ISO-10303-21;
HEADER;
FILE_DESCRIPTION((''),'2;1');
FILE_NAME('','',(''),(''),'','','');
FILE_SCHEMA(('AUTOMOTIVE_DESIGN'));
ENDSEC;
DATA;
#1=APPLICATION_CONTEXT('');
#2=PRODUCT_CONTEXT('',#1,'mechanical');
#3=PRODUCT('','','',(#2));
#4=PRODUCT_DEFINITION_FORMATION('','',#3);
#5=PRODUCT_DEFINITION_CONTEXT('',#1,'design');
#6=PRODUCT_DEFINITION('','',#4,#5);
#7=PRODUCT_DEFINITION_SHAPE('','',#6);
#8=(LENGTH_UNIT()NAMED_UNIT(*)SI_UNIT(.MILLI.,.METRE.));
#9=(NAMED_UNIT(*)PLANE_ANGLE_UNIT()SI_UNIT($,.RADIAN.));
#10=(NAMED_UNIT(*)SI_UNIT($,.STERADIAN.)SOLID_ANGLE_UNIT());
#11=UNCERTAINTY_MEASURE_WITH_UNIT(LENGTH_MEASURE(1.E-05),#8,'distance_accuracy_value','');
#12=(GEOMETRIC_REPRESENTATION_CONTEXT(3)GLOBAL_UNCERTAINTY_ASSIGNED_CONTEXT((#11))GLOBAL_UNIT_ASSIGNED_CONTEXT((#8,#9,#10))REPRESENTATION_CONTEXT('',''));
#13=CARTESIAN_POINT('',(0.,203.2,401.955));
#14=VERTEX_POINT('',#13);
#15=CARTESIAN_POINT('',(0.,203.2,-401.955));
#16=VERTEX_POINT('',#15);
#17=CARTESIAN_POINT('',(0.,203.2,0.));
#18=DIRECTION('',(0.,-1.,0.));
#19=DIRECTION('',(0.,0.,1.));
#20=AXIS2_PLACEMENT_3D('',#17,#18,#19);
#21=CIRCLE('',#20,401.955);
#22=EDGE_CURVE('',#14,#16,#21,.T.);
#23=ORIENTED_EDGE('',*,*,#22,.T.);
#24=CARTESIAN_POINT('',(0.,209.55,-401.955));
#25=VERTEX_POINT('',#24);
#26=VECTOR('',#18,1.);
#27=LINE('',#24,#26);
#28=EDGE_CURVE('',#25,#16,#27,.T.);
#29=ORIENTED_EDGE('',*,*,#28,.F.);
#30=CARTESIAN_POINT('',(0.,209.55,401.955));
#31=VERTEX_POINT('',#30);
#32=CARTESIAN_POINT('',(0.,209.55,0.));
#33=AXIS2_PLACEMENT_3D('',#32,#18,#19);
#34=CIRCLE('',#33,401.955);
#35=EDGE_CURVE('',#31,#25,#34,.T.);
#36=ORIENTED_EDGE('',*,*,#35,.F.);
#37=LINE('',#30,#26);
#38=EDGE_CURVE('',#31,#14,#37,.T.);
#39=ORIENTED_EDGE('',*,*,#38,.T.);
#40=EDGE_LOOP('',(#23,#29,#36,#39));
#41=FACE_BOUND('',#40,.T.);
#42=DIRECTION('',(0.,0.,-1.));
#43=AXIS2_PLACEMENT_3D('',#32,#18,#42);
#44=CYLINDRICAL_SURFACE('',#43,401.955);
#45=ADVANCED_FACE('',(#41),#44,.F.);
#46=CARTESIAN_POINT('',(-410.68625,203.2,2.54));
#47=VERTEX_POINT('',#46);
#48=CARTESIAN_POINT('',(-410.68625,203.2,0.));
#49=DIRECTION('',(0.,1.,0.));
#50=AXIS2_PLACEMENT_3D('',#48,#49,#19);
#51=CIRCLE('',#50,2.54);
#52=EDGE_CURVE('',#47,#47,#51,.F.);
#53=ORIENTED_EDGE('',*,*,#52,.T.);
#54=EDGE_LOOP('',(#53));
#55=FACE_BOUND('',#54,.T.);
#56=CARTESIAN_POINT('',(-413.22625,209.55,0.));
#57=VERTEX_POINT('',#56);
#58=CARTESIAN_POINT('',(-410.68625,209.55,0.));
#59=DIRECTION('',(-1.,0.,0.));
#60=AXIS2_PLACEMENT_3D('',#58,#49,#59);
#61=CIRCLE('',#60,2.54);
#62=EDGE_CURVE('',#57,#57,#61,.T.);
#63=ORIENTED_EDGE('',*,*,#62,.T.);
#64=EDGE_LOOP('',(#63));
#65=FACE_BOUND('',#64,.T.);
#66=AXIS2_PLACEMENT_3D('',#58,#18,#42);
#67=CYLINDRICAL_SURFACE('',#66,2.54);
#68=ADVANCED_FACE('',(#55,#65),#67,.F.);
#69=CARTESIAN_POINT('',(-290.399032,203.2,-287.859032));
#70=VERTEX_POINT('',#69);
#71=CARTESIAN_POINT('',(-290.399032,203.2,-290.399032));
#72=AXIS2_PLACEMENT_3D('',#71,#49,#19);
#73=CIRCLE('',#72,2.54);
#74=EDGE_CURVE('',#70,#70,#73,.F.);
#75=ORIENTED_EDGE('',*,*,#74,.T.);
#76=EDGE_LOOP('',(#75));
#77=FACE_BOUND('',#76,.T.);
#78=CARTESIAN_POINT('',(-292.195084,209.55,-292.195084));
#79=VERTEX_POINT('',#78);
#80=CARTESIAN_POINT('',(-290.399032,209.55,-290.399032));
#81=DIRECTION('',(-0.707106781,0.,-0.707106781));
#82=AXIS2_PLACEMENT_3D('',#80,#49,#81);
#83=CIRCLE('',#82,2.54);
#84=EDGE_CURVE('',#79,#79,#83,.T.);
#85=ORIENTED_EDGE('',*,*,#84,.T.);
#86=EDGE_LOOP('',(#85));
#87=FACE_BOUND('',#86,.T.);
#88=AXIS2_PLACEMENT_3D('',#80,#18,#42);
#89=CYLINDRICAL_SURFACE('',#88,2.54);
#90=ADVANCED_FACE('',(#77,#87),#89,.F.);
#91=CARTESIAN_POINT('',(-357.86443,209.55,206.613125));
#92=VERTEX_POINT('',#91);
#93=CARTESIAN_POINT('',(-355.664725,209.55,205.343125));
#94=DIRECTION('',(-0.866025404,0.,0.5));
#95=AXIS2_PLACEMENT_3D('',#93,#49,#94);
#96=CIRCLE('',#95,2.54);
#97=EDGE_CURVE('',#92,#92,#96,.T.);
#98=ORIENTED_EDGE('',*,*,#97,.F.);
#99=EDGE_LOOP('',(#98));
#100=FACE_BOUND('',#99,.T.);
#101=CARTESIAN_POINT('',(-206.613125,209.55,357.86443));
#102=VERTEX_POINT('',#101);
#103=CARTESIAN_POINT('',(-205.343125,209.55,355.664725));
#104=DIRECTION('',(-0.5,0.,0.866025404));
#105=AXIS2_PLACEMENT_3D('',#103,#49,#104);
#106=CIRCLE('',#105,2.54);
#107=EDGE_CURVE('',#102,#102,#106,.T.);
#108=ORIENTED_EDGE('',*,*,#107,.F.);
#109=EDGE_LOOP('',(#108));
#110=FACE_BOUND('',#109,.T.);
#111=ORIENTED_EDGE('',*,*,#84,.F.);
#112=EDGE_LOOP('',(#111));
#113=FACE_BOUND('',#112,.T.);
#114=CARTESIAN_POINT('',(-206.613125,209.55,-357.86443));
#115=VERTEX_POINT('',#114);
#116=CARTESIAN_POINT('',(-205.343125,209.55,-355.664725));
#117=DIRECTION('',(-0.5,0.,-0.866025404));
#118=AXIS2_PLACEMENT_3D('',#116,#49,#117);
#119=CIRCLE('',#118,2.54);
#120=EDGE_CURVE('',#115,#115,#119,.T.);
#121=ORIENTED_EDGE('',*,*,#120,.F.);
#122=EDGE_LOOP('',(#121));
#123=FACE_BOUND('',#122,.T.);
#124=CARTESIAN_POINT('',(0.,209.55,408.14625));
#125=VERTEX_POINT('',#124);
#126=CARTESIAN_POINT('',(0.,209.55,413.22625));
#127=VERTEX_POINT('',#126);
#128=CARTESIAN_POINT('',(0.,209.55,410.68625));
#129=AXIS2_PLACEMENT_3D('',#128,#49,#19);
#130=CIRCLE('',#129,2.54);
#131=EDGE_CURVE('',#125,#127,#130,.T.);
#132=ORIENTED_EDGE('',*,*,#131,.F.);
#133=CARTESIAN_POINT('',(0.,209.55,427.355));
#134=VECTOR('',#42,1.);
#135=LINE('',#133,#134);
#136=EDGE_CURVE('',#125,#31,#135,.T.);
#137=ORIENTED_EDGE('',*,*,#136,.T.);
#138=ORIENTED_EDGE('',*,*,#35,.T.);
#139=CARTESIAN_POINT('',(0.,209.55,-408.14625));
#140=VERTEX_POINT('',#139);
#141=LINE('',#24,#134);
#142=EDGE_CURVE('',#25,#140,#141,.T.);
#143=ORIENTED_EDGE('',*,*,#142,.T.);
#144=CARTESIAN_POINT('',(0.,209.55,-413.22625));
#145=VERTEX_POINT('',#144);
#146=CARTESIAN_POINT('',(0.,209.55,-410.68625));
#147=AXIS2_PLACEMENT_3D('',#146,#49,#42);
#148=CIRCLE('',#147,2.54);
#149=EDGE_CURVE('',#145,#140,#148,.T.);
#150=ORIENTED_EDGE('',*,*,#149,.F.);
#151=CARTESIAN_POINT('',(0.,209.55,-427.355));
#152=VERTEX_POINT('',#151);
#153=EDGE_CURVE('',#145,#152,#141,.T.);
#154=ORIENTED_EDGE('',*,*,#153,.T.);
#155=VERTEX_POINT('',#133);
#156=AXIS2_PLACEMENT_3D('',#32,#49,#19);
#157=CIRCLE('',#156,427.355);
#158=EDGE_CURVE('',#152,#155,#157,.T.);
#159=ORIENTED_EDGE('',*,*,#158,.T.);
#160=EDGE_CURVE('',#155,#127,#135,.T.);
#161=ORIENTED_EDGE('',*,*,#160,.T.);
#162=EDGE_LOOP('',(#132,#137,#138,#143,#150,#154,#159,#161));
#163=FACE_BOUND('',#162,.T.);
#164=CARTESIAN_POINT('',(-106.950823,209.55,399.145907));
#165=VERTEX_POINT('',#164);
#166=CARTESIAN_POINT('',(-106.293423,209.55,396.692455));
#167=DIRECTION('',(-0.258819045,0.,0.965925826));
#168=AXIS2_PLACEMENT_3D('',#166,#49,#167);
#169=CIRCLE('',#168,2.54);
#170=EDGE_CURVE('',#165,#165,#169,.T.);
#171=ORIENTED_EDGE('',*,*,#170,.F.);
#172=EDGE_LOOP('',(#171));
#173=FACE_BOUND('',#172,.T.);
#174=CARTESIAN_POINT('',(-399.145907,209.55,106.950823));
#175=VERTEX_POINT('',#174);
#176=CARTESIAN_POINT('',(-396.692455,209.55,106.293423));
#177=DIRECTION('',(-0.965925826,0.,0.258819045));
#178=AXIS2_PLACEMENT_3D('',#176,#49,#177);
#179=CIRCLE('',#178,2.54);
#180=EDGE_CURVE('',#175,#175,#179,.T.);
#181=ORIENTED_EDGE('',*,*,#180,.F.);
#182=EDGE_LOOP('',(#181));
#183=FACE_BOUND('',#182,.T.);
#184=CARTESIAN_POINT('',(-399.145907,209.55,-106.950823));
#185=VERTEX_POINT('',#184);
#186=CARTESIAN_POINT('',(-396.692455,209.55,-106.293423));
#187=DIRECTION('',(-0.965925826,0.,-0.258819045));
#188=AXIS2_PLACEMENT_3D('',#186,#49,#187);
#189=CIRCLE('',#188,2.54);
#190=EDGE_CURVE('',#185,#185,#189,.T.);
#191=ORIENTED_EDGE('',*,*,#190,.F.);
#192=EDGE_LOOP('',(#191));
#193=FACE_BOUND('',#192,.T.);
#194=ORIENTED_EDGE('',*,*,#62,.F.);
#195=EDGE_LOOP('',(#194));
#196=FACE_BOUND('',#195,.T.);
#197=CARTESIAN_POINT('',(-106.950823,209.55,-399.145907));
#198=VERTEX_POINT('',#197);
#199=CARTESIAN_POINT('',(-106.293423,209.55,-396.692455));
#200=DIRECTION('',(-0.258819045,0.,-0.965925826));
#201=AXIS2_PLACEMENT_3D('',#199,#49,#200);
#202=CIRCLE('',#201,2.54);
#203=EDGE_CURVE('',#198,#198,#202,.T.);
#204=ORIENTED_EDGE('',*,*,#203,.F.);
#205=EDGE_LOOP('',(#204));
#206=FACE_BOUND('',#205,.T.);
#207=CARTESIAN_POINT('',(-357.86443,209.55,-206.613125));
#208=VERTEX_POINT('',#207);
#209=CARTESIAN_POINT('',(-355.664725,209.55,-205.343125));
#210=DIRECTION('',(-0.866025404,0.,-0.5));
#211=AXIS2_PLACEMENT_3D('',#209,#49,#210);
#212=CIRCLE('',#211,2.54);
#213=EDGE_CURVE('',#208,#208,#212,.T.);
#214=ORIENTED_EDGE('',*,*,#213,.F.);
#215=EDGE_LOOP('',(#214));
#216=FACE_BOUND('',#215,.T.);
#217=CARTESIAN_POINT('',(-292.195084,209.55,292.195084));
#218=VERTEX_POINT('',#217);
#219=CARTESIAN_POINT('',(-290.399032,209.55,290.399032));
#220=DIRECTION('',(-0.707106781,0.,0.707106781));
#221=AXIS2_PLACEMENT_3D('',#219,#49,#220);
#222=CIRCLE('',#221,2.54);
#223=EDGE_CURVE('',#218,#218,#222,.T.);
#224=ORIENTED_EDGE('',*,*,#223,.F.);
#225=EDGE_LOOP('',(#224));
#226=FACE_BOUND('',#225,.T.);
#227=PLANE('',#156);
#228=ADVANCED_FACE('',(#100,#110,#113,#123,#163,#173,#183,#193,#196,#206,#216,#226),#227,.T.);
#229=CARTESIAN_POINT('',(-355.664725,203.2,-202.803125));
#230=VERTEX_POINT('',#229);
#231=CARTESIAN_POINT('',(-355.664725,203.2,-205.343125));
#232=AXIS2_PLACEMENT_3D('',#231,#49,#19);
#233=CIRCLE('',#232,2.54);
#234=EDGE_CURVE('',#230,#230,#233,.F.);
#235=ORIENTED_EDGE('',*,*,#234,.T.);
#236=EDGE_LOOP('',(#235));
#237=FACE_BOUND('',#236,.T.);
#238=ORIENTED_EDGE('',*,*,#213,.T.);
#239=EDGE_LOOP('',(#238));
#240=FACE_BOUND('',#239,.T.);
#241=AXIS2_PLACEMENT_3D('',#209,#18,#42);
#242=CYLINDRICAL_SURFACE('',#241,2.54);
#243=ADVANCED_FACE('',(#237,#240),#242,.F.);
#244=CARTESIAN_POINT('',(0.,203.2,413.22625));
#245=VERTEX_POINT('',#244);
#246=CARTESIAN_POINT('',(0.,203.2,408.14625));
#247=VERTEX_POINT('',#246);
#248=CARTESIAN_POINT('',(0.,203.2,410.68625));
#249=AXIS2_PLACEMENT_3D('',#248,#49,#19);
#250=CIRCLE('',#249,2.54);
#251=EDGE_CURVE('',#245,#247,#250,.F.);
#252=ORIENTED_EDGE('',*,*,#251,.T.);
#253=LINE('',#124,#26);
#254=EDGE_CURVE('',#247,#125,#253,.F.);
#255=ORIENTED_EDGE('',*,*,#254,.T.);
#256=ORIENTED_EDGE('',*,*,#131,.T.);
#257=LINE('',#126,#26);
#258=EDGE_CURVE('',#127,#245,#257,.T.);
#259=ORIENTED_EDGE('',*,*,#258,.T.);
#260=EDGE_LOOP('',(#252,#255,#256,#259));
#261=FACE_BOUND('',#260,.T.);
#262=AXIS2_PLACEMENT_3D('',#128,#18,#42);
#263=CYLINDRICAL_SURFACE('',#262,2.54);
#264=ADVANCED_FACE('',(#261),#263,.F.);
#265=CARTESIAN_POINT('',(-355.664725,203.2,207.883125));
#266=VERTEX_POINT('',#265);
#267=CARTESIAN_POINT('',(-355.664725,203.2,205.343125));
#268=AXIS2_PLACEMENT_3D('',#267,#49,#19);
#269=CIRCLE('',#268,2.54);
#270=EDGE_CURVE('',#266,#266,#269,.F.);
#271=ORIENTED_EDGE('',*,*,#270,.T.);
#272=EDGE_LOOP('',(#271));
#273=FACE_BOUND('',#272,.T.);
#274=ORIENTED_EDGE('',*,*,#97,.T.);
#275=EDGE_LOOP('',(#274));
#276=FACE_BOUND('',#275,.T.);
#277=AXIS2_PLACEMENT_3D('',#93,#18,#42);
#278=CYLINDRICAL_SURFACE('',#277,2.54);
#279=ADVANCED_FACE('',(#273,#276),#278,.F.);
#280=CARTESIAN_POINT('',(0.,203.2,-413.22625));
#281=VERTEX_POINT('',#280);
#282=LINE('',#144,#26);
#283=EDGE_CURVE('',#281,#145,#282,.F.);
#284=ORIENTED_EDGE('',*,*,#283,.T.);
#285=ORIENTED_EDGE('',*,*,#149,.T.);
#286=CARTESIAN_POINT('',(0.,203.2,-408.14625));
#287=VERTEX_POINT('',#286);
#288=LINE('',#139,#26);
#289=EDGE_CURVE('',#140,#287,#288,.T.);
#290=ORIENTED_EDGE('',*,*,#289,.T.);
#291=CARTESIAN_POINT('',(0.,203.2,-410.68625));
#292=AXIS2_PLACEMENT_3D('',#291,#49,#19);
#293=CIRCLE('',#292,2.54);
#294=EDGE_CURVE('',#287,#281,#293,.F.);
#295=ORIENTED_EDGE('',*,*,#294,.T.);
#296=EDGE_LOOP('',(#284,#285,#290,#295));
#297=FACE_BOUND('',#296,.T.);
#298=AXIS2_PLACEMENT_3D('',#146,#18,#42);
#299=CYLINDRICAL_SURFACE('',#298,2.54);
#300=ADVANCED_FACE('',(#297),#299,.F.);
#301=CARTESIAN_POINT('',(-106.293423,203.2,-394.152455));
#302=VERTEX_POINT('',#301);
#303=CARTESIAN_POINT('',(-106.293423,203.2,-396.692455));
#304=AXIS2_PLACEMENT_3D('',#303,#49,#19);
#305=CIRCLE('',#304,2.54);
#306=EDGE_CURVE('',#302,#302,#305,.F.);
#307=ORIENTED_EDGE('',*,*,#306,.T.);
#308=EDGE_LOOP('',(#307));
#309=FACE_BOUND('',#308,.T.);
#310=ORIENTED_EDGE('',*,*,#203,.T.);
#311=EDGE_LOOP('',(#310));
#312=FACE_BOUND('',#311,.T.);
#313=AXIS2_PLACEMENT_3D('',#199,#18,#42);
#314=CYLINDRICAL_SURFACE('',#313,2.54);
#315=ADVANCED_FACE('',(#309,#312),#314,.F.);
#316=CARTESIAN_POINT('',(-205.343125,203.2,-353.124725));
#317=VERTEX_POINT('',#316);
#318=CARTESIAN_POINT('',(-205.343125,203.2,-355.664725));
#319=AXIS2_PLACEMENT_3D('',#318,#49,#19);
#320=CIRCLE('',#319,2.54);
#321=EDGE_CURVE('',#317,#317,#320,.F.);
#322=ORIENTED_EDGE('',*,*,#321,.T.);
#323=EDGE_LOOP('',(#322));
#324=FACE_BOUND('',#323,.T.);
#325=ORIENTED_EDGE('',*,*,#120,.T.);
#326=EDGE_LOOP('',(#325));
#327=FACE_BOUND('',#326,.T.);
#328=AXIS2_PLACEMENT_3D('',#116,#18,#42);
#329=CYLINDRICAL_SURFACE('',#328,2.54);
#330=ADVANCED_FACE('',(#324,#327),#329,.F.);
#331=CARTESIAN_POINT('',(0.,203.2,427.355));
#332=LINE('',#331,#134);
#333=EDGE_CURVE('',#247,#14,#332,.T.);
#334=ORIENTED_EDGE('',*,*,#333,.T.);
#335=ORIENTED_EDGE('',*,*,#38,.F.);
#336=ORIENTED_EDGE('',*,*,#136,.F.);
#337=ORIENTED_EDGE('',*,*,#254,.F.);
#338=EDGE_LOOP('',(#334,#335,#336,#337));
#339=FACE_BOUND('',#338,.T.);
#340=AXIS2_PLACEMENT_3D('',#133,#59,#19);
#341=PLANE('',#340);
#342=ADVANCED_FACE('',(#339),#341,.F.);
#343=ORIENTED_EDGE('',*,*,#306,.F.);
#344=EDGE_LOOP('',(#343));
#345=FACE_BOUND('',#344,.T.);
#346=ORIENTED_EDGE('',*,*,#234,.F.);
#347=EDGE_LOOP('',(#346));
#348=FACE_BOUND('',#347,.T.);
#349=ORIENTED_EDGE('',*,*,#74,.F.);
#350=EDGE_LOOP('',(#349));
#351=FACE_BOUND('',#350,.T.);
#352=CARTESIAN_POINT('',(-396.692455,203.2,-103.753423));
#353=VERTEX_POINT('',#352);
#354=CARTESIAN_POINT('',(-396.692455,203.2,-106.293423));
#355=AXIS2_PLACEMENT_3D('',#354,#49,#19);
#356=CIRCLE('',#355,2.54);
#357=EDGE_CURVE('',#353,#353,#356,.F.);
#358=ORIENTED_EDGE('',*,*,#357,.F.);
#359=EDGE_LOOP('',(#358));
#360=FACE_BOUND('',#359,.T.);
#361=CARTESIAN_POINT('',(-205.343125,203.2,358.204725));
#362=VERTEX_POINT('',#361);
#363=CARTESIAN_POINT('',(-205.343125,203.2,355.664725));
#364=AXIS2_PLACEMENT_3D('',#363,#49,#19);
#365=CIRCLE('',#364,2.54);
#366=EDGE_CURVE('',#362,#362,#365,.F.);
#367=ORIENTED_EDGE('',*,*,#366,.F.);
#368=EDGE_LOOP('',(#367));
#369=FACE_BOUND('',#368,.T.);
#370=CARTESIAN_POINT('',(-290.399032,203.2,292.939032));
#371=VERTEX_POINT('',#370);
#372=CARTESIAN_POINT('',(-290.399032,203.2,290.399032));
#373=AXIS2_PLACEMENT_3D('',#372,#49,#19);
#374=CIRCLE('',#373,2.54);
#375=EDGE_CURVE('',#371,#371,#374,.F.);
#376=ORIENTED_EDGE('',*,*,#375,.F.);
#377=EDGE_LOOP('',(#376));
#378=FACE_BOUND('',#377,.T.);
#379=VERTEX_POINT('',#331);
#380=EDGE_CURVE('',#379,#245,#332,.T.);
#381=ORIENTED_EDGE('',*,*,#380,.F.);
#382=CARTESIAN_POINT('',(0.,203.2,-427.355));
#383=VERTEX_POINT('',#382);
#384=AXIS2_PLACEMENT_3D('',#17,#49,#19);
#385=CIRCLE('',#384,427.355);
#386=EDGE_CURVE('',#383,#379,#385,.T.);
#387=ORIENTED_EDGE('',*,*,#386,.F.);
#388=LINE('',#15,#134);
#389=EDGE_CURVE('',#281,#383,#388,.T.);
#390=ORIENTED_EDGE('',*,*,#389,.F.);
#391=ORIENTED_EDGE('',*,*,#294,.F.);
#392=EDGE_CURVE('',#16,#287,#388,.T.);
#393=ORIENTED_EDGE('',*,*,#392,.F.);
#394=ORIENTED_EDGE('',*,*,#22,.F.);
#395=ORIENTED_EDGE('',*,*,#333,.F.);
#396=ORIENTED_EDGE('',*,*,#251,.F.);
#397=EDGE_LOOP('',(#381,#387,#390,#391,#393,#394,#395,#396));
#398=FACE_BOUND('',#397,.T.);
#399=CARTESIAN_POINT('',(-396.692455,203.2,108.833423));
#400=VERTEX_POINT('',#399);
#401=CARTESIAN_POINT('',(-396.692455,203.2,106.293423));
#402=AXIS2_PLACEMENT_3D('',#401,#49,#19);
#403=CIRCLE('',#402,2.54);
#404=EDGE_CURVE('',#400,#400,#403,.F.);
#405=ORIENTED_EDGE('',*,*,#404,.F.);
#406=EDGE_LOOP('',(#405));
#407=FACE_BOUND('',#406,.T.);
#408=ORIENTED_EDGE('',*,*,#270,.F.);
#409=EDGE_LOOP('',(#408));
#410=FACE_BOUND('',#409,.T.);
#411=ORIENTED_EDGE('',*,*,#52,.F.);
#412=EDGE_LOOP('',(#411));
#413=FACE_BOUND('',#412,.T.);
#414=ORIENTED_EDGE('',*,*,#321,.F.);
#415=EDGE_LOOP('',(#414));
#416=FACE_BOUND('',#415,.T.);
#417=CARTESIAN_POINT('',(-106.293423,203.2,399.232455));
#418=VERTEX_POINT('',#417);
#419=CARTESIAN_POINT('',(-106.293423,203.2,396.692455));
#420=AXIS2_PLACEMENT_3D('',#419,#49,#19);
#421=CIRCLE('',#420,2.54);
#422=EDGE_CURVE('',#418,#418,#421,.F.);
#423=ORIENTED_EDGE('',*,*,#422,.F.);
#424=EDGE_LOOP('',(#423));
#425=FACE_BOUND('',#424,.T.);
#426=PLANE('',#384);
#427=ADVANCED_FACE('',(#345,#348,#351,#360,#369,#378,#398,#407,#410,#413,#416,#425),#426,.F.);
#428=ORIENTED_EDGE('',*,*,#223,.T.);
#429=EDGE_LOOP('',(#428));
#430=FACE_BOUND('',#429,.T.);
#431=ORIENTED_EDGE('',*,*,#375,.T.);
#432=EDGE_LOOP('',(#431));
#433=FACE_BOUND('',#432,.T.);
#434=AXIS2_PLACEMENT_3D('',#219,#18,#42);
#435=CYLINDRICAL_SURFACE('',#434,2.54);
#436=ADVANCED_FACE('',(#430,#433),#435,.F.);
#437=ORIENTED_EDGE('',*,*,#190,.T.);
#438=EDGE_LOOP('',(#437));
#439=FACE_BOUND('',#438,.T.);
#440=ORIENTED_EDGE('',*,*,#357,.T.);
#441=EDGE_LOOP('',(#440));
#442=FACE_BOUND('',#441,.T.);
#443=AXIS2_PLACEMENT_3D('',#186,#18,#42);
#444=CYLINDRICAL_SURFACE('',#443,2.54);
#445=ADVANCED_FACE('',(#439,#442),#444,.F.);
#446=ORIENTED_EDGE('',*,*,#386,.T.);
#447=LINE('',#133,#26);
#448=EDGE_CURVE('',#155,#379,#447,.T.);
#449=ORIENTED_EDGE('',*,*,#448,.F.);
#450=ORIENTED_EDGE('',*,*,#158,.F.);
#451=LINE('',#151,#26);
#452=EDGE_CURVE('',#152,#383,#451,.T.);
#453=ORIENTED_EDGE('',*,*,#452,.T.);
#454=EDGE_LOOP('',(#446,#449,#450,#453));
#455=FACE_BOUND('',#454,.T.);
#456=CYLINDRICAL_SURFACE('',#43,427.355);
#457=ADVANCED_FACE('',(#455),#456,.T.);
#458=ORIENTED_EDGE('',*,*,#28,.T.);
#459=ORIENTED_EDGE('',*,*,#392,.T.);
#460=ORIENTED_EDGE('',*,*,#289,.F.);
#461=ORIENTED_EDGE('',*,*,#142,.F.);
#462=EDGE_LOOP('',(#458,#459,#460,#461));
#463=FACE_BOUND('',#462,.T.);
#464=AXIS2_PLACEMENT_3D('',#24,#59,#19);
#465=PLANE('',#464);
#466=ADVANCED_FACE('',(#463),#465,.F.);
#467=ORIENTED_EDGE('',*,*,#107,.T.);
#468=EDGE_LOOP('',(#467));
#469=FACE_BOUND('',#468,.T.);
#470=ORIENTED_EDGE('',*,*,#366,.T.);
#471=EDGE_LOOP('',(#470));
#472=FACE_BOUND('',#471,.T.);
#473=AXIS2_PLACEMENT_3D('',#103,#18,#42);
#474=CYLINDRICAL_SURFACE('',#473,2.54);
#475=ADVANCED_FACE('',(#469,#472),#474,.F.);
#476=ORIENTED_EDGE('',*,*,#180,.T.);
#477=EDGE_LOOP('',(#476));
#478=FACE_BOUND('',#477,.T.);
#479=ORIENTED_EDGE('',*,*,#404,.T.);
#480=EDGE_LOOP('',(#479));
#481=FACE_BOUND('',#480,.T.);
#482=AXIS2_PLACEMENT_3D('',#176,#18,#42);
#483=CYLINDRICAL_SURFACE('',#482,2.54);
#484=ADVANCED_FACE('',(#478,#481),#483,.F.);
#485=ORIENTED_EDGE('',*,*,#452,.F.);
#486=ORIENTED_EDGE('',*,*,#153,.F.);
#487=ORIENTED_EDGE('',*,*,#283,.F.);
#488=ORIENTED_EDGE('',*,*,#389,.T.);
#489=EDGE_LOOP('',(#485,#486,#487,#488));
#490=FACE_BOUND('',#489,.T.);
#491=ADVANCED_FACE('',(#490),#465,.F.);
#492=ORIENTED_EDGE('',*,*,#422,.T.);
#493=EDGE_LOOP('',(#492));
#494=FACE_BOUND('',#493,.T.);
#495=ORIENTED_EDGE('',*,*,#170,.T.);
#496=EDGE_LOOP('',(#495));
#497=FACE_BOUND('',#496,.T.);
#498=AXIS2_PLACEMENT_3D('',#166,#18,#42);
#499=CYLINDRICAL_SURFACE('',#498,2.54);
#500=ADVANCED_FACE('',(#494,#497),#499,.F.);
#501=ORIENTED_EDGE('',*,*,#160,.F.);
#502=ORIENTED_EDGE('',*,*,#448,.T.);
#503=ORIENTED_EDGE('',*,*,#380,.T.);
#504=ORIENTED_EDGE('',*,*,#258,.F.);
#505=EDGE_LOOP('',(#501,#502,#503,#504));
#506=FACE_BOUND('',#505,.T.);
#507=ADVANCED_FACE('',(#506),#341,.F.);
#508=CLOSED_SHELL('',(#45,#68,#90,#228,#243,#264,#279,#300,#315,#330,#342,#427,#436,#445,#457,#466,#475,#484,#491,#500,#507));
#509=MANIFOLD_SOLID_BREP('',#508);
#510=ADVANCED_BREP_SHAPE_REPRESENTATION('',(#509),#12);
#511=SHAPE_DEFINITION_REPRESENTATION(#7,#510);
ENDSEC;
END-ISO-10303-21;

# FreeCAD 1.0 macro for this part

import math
import FreeCAD as App
import Part
import Sketcher
Q = App.Units.Quantity

doc = App.newDocument("Part")
body = doc.addObject("PartDesign::Body", "Body")

# Sketch on YZ plane
sketch1 = body.newObject("Sketcher::SketchObject", "Sketch")
sketch1.AttachmentSupport = (doc.getObject("YZ_Plane"), [""])
sketch1.MapMode = "FlatFace"
sketch1.AttachmentOffset = App.Placement(App.Vector(0, 0, -12.5 * 25.4), App.Rotation())
sketch1.addGeometry(Part.LineSegment(App.Vector(88.9, -362.9, 0), App.Vector(88.9, 0, 0)), False)
sketch1.addGeometry(Part.LineSegment(App.Vector(88.9, 0, 0), App.Vector(65.1, 0, 0)), False)
sketch1.addGeometry(Part.ArcOfCircle(Part.Circle(App.Vector(50.8, 0, 0), App.Vector(0, 0, 1), 14.3), math.radians(180), math.radians(360)), False)
sketch1.addGeometry(Part.LineSegment(App.Vector(36.5, 0, 0), App.Vector(12.7, 0, 0)), False)
sketch1.addGeometry(Part.LineSegment(App.Vector(12.7, 0, 0), App.Vector(12.7, -362.9, 0)), False)
sketch1.addGeometry(Part.LineSegment(App.Vector(12.7, -362.9, 0), App.Vector(88.9, -362.9, 0)), False)
sketch1.addGeometry(Part.Circle(App.Vector(25.4, -53.3, 0), App.Vector(0, 0, 1), 2.5), False)
sketch1.addGeometry(Part.Circle(App.Vector(50.8, -53.3, 0), App.Vector(0, 0, 1), 9.5), False)
sketch1.addGeometry(Part.Circle(App.Vector(50.8, -177.5, 0), App.Vector(0, 0, 1), 14.3), False)
sketch1.addGeometry(Part.Circle(App.Vector(76.2, -53.3, 0), App.Vector(0, 0, 1), 2.5), False)
sketch1.addGeometry(Part.Circle(App.Vector(54, -337.5, 0), App.Vector(0, 0, 1), 14.3), False)
sketch1.addConstraint(Sketcher.Constraint("Coincident", 0, 2, 1, 1))
sketch1.addConstraint(Sketcher.Constraint("Coincident", 1, 2, 2, 2))
sketch1.addConstraint(Sketcher.Constraint("Coincident", 2, 1, 3, 1))
sketch1.addConstraint(Sketcher.Constraint("Coincident", 3, 2, 4, 1))
sketch1.addConstraint(Sketcher.Constraint("Coincident", 4, 2, 5, 1))
sketch1.addConstraint(Sketcher.Constraint("Coincident", 5, 2, 0, 1))
sketch1.addConstraint(Sketcher.Constraint("Vertical", 0))
sketch1.addConstraint(Sketcher.Constraint("Horizontal", 1))
sketch1.addConstraint(Sketcher.Constraint("Horizontal", 3))
sketch1.addConstraint(Sketcher.Constraint("Vertical", 4))
sketch1.addConstraint(Sketcher.Constraint("Horizontal", 5))
sketch1.addConstraint(Sketcher.Constraint("Equal", 2, 8))
sketch1.addConstraint(Sketcher.Constraint("Equal", 6, 9))
sketch1.addConstraint(Sketcher.Constraint("Equal", 8, 10))
sketch1.addConstraint(Sketcher.Constraint("PointOnObject", 2, 3, -1))
sketch1.addConstraint(Sketcher.Constraint("PointOnObject", 0, 2, -1))
sketch1.addConstraint(Sketcher.Constraint("PointOnObject", 2, 1, -1))
sketch1.addConstraint(Sketcher.Constraint("Horizontal", 6, 3, 7, 3))
sketch1.addConstraint(Sketcher.Constraint("Horizontal", 7, 3, 9, 3))
sketch1.addConstraint(Sketcher.Constraint("Vertical", 2, 3, 7, 3))
sketch1.addConstraint(Sketcher.Constraint("Vertical", 7, 3, 8, 3))
sketch1.addConstraint(Sketcher.Constraint("Equal", 1, 3))
sketch1.addConstraint(Sketcher.Constraint("Diameter", 6, Q("0.2 in")))
sketch1.addConstraint(Sketcher.Constraint("Diameter", 7, Q("0.75 in")))
sketch1.addConstraint(Sketcher.Constraint("DistanceX", 5, 1, 5, 2, Q("3 in")))
sketch1.addConstraint(Sketcher.Constraint("Diameter", 8, Q("1.125 in")))
sketch1.addConstraint(Sketcher.Constraint("DistanceX", -1, 1, 2, 3, Q("2 in")))
sketch1.addConstraint(Sketcher.Constraint("DistanceX", -1, 1, 6, 3, Q("1 in")))
sketch1.addConstraint(Sketcher.Constraint("DistanceX", -1, 1, 9, 3, Q("3 in")))
sketch1.addConstraint(Sketcher.Constraint("DistanceY", 4, 2, 10, 3, Q("1 in")))
sketch1.addConstraint(Sketcher.Constraint("DistanceY", 6, 3, -1, 1, Q("2.1 in")))
sketch1.addConstraint(Sketcher.Constraint("DistanceX", -1, 1, 10, 3, Q("2.125 in")))
sketch1.addConstraint(Sketcher.Constraint("DistanceY", 8, 3, -1, 1, Q("6.9866 in")))
sketch1.addConstraint(Sketcher.Constraint("DistanceY", 0, 1, 0, 2, 362.85322))
pad1 = body.newObject("PartDesign::Pad", "Pad")
pad1.Profile = sketch1
pad1.Length = Q("0.125 in")
pad1.Reversed = True

# Sketch on XZ plane
sketch2 = body.newObject("Sketcher::SketchObject", "Sketch001")
sketch2.AttachmentSupport = (doc.getObject("XZ_Plane"), [""])
sketch2.MapMode = "FlatFace"
sketch2.AttachmentOffset = App.Placement(App.Vector(0, 0, -3.5 * 25.4), App.Rotation())
sketch2.addGeometry(Part.LineSegment(App.Vector(-343, 0, 0), App.Vector(-319, 0, 0)), False)
sketch2.addGeometry(Part.LineSegment(App.Vector(-319, 0, 0), App.Vector(-318, -363, 0)), False)
sketch2.addGeometry(Part.LineSegment(App.Vector(-318, -363, 0), App.Vector(-343, -363, 0)), False)
sketch2.addGeometry(Part.LineSegment(App.Vector(-343, -363, 0), App.Vector(-343, 0, 0)), False)
sketch2.addConstraint(Sketcher.Constraint("Coincident", 0, 2, 1, 1))
sketch2.addConstraint(Sketcher.Constraint("Coincident", 1, 2, 2, 1))
sketch2.addConstraint(Sketcher.Constraint("Coincident", 2, 2, 3, 1))
sketch2.addConstraint(Sketcher.Constraint("Coincident", 3, 2, 0, 1))
sketch2.addConstraint(Sketcher.Constraint("Horizontal", 0))
sketch2.addConstraint(Sketcher.Constraint("Horizontal", 2))
sketch2.addConstraint(Sketcher.Constraint("Vertical", 3))
sketch2.addConstraint(Sketcher.Constraint("PointOnObject", 0, 2, -1))
sketch2.addConstraint(Sketcher.Constraint("DistanceX", 2, 2, 2, 1, Q("1 in")))
sketch2.addConstraint(Sketcher.Constraint("DistanceX", 1, 2, -1, 1, Q("12.5 in")))
sketch2.addConstraint(Sketcher.Constraint("DistanceX", 0, 1, 0, 2, Q("0.9375 in")))
sketch2.addConstraint(Sketcher.Constraint("DistanceY", 3, 1, 3, 2, 362.85322))
pad2 = body.newObject("PartDesign::Pad", "Pad001")
pad2.Profile = sketch2
pad2.Length = Q("0.125 in")

# Sketch on XZ plane
sketch3 = body.newObject("Sketcher::SketchObject", "Sketch002")
sketch3.AttachmentSupport = (doc.getObject("XZ_Plane"), [""])
sketch3.MapMode = "FlatFace"
sketch3.AttachmentOffset = App.Placement(App.Vector(0, 0, -0.5 * 25.4), App.Rotation())
sketch3.addGeometry(Part.LineSegment(App.Vector(-343, 0, 0), App.Vector(-319, 0, 0)), False)
sketch3.addGeometry(Part.LineSegment(App.Vector(-319, 0, 0), App.Vector(-318, -363, 0)), False)
sketch3.addGeometry(Part.LineSegment(App.Vector(-318, -363, 0), App.Vector(-343, -363, 0)), False)
sketch3.addGeometry(Part.LineSegment(App.Vector(-343, -363, 0), App.Vector(-343, 0, 0)), False)
sketch3.addConstraint(Sketcher.Constraint("Coincident", 0, 2, 1, 1))
sketch3.addConstraint(Sketcher.Constraint("Coincident", 1, 2, 2, 1))
sketch3.addConstraint(Sketcher.Constraint("Coincident", 2, 2, 3, 1))
sketch3.addConstraint(Sketcher.Constraint("Coincident", 3, 2, 0, 1))
sketch3.addConstraint(Sketcher.Constraint("Horizontal", 0))
sketch3.addConstraint(Sketcher.Constraint("Horizontal", 2))
sketch3.addConstraint(Sketcher.Constraint("Vertical", 3))
sketch3.addConstraint(Sketcher.Constraint("PointOnObject", 0, 2, -1))
sketch3.addConstraint(Sketcher.Constraint("DistanceX", 2, 2, 2, 1, Q("1 in")))
sketch3.addConstraint(Sketcher.Constraint("DistanceX", 1, 2, -1, 1, Q("12.5 in")))
sketch3.addConstraint(Sketcher.Constraint("DistanceX", 0, 1, 0, 2, Q("0.9375 in")))
sketch3.addConstraint(Sketcher.Constraint("DistanceY", 3, 1, 3, 2, 362.85322))
pad3 = body.newObject("PartDesign::Pad", "Pad002")
pad3.Profile = sketch3
pad3.Length = Q("0.125 in")
pad3.Reversed = True

# Sketch on XZ plane
sketch4 = body.newObject("Sketcher::SketchObject", "Sketch003")
sketch4.AttachmentSupport = (doc.getObject("XZ_Plane"), [""])
sketch4.MapMode = "FlatFace"
sketch4.AttachmentOffset = App.Placement(App.Vector(0, 0, -3.5 * 25.4), App.Rotation())
sketch4.addGeometry(Part.Circle(App.Vector(-330.2, -355.6, 0), App.Vector(0, 0, 1), 2.5), False)
sketch4.addConstraint(Sketcher.Constraint("Diameter", 0, Q("0.2 in")))
sketch4.addConstraint(Sketcher.Constraint("DistanceX", 0, 3, -1, 1, Q("13 in")))
sketch4.addConstraint(Sketcher.Constraint("DistanceY", 0, 3, -1, 1, Q("14 in")))
pocket1 = body.newObject("PartDesign::Pocket", "Pocket")
pocket1.Profile = sketch4
pocket1.Type = "ThroughAll"
pocket1.Reversed = True
doc.recompute()

linearpattern = body.newObject("PartDesign::LinearPattern", "LinearPattern")
linearpattern.Originals = [pocket1]
linearpattern.Direction = (doc.getObject("Z_Axis"), [""])
linearpattern.Mode = "offset"
linearpattern.Offset = Q("2 in")
linearpattern.Occurrences = 10
body.Tip = linearpattern
body2 = doc.addObject("PartDesign::Body", "Body001")
doc.recompute()

body2.BaseFeature = body
doc.recompute()

mirroring = doc.addObject("Part::Mirroring", "Mirroring")
mirroring.Source = body
mirroring.Base = App.Vector(-320.239665, 22.265915, 0)
mirroring.Normal = App.Vector(0, 0, 1)
body3 = doc.addObject("PartDesign::Body", "Body002")
body3.BaseFeature = mirroring
boolean = body2.newObject("PartDesign::Boolean", "Boolean")
boolean.Type = "Fuse"
boolean.addObjects([body3])
doc.recompute()

# Sketch on XZ plane
sketch5 = body2.newObject("Sketcher::SketchObject", "Sketch004")
sketch5.AttachmentSupport = (doc.getObject("XZ_Plane001"), [""])
sketch5.MapMode = "FlatFace"
sketch5.AttachmentOffset = App.Placement(App.Vector(0, 0, -4 * 25.4), App.Rotation())
sketch5.addGeometry(Part.LineSegment(App.Vector(0, 452.8, 0), App.Vector(0, -452.8, 0)), False)
sketch5.addGeometry(Part.ArcOfCircle(Part.Circle(App.Vector(0, 0, 0), App.Vector(0, 0, 1), 452.8), math.radians(-152), math.radians(-90)), False)
sketch5.addGeometry(Part.LineSegment(App.Vector(-399.8, -212.4, 0), App.Vector(-381, -212.4, 0)), False)
sketch5.addGeometry(Part.LineSegment(App.Vector(-381, -212.4, 0), App.Vector(-381, -142.5, 0)), False)
sketch5.addGeometry(Part.LineSegment(App.Vector(-381, -142.5, 0), App.Vector(-419.1, -142.5, 0)), False)
sketch5.addGeometry(Part.LineSegment(App.Vector(-419.1, -142.5, 0), App.Vector(-419.1, -171.3, 0)), False)
sketch5.addGeometry(Part.ArcOfCircle(Part.Circle(App.Vector(0, 0, 0), App.Vector(0, 0, 1), 452.8), math.radians(158), math.radians(202)), False)
sketch5.addGeometry(Part.LineSegment(App.Vector(-419.1, 171.3, 0), App.Vector(-419.1, 142.5, 0)), False)
sketch5.addGeometry(Part.LineSegment(App.Vector(-419.1, 142.5, 0), App.Vector(-381, 142.5, 0)), False)
sketch5.addGeometry(Part.LineSegment(App.Vector(-381, 142.5, 0), App.Vector(-381, 212.4, 0)), False)
sketch5.addGeometry(Part.LineSegment(App.Vector(-381, 212.4, 0), App.Vector(-399.8, 212.4, 0)), False)
sketch5.addGeometry(Part.ArcOfCircle(Part.Circle(App.Vector(0, 0, 0), App.Vector(0, 0, 1), 452.8), math.radians(90), math.radians(152)), False)
sketch5.addGeometry(Part.Circle(App.Vector(-441.3, 88.9, 0), App.Vector(0, 0, 1), 2.5), False)
sketch5.addGeometry(Part.Circle(App.Vector(-330.2, 304.8, 0), App.Vector(0, 0, 1), 2.5), False)
sketch5.addGeometry(Part.Circle(App.Vector(-330.2, 254, 0), App.Vector(0, 0, 1), 2.5), False)
sketch5.addGeometry(Part.Circle(App.Vector(-330.2, 203.2, 0), App.Vector(0, 0, 1), 2.5), False)
sketch5.addGeometry(Part.Circle(App.Vector(-330.2, 152.4, 0), App.Vector(0, 0, 1), 2.5), False)
sketch5.addGeometry(Part.Circle(App.Vector(-330.2, 101.6, 0), App.Vector(0, 0, 1), 2.5), False)
sketch5.addGeometry(Part.Circle(App.Vector(-330.2, 50.8, 0), App.Vector(0, 0, 1), 2.5), False)
sketch5.addGeometry(Part.Circle(App.Vector(-441.3, 0, 0), App.Vector(0, 0, 1), 2.5), False)
sketch5.addGeometry(Part.Circle(App.Vector(-441.3, -88.9, 0), App.Vector(0, 0, 1), 2.5), False)
sketch5.addGeometry(Part.Circle(App.Vector(-330.2, 0, 0), App.Vector(0, 0, 1), 2.5), False)
sketch5.addGeometry(Part.Circle(App.Vector(-330.2, -50.8, 0), App.Vector(0, 0, 1), 2.5), False)
sketch5.addGeometry(Part.Circle(App.Vector(-330.2, -101.6, 0), App.Vector(0, 0, 1), 2.5), False)
sketch5.addGeometry(Part.Circle(App.Vector(-330.2, -152.4, 0), App.Vector(0, 0, 1), 2.5), False)
sketch5.addGeometry(Part.Circle(App.Vector(-330.2, -203.2, 0), App.Vector(0, 0, 1), 2.5), False)
sketch5.addGeometry(Part.Circle(App.Vector(-330.2, -254, 0), App.Vector(0, 0, 1), 2.5), False)
sketch5.addGeometry(Part.Circle(App.Vector(-330.2, -304.8, 0), App.Vector(0, 0, 1), 2.5), False)
sketch5.addConstraint(Sketcher.Constraint("Coincident", 0, 2, 1, 2))
sketch5.addConstraint(Sketcher.Constraint("Coincident", 1, 1, 2, 1))
sketch5.addConstraint(Sketcher.Constraint("Coincident", 2, 2, 3, 1))
sketch5.addConstraint(Sketcher.Constraint("Coincident", 3, 2, 4, 1))
sketch5.addConstraint(Sketcher.Constraint("Coincident", 4, 2, 5, 1))
sketch5.addConstraint(Sketcher.Constraint("Coincident", 5, 2, 6, 2))
sketch5.addConstraint(Sketcher.Constraint("Coincident", 6, 1, 7, 1))
sketch5.addConstraint(Sketcher.Constraint("Coincident", 7, 2, 8, 1))
sketch5.addConstraint(Sketcher.Constraint("Coincident", 8, 2, 9, 1))
sketch5.addConstraint(Sketcher.Constraint("Coincident", 9, 2, 10, 1))
sketch5.addConstraint(Sketcher.Constraint("Coincident", 10, 2, 11, 2))
sketch5.addConstraint(Sketcher.Constraint("Coincident", 11, 1, 0, 1))
sketch5.addConstraint(Sketcher.Constraint("Vertical", 0))
sketch5.addConstraint(Sketcher.Constraint("Horizontal", 2))
sketch5.addConstraint(Sketcher.Constraint("Vertical", 3))
sketch5.addConstraint(Sketcher.Constraint("Horizontal", 4))
sketch5.addConstraint(Sketcher.Constraint("Vertical", 5))
sketch5.addConstraint(Sketcher.Constraint("Vertical", 7))
sketch5.addConstraint(Sketcher.Constraint("Horizontal", 8))
sketch5.addConstraint(Sketcher.Constraint("Vertical", 9))
sketch5.addConstraint(Sketcher.Constraint("Horizontal", 10))
sketch5.addConstraint(Sketcher.Constraint("Coincident", 1, 3, -1, 1))
sketch5.addConstraint(Sketcher.Constraint("Coincident", 6, 3, -1, 1))
sketch5.addConstraint(Sketcher.Constraint("Coincident", 11, 3, -1, 1))
sketch5.addConstraint(Sketcher.Constraint("Equal", 1, 6))
sketch5.addConstraint(Sketcher.Constraint("Equal", 6, 11))
sketch5.addConstraint(Sketcher.Constraint("Equal", 12, 13))
sketch5.addConstraint(Sketcher.Constraint("Equal", 13, 14))
sketch5.addConstraint(Sketcher.Constraint("Equal", 14, 15))
sketch5.addConstraint(Sketcher.Constraint("Equal", 15, 16))
sketch5.addConstraint(Sketcher.Constraint("Equal", 16, 17))
sketch5.addConstraint(Sketcher.Constraint("Equal", 17, 18))
sketch5.addConstraint(Sketcher.Constraint("Equal", 18, 19))
sketch5.addConstraint(Sketcher.Constraint("Equal", 19, 20))
sketch5.addConstraint(Sketcher.Constraint("Equal", 20, 21))
sketch5.addConstraint(Sketcher.Constraint("Equal", 21, 22))
sketch5.addConstraint(Sketcher.Constraint("Equal", 22, 23))
sketch5.addConstraint(Sketcher.Constraint("Equal", 23, 24))
sketch5.addConstraint(Sketcher.Constraint("Equal", 24, 25))
sketch5.addConstraint(Sketcher.Constraint("Equal", 25, 26))
sketch5.addConstraint(Sketcher.Constraint("Equal", 26, 27))
sketch5.addConstraint(Sketcher.Constraint("Symmetric", 12, 3, 20, 3, -1))
sketch5.addConstraint(Sketcher.Constraint("Symmetric", 18, 3, 22, 3, -1))
sketch5.addConstraint(Sketcher.Constraint("Symmetric", 17, 3, 23, 3, -1))
sketch5.addConstraint(Sketcher.Constraint("Symmetric", 16, 3, 24, 3, -1))
sketch5.addConstraint(Sketcher.Constraint("Symmetric", 15, 3, 25, 3, -1))
sketch5.addConstraint(Sketcher.Constraint("Symmetric", 14, 3, 26, 3, -1))
sketch5.addConstraint(Sketcher.Constraint("Symmetric", 13, 3, 27, 3, -1))
sketch5.addConstraint(Sketcher.Constraint("Symmetric", 4, 2, 7, 2, -1))
sketch5.addConstraint(Sketcher.Constraint("Symmetric", 2, 2, 9, 2, -1))
sketch5.addConstraint(Sketcher.Constraint("PointOnObject", 19, 3, -1))
sketch5.addConstraint(Sketcher.Constraint("PointOnObject", 21, 3, -1))
sketch5.addConstraint(Sketcher.Constraint("PointOnObject", 0, 2, -2))
sketch5.addConstraint(Sketcher.Constraint("Vertical", 13, 3, 14, 3))
sketch5.addConstraint(Sketcher.Constraint("Vertical", 14, 3, 15, 3))
sketch5.addConstraint(Sketcher.Constraint("Vertical", 15, 3, 16, 3))
sketch5.addConstraint(Sketcher.Constraint("Vertical", 16, 3, 17, 3))
sketch5.addConstraint(Sketcher.Constraint("Vertical", 17, 3, 18, 3))
sketch5.addConstraint(Sketcher.Constraint("Vertical", 12, 3, 19, 3))
sketch5.addConstraint(Sketcher.Constraint("Vertical", 18, 3, 21, 3))
sketch5.addConstraint(Sketcher.Constraint("Diameter", 12, Q("0.2 in")))
sketch5.addConstraint(Sketcher.Constraint("DistanceX", 4, 2, 4, 1, Q("1.5 in")))
sketch5.addConstraint(Sketcher.Constraint("DistanceX", 13, 3, -1, 1, Q("13 in")))
sketch5.addConstraint(Sketcher.Constraint("DistanceY", -1, 1, 13, 3, Q("12 in")))
sketch5.addConstraint(Sketcher.Constraint("DistanceY", -1, 1, 14, 3, Q("10 in")))
sketch5.addConstraint(Sketcher.Constraint("DistanceY", -1, 1, 15, 3, Q("8 in")))
sketch5.addConstraint(Sketcher.Constraint("DistanceY", -1, 1, 16, 3, Q("6 in")))
sketch5.addConstraint(Sketcher.Constraint("DistanceY", -1, 1, 17, 3, Q("4 in")))
sketch5.addConstraint(Sketcher.Constraint("DistanceY", -1, 1, 18, 3, Q("2 in")))
sketch5.addConstraint(Sketcher.Constraint("DistanceX", 2, 2, -1, 1, Q("15 in")))
sketch5.addConstraint(Sketcher.Constraint("Radius", 1, Q("17.825 in")))
sketch5.addConstraint(Sketcher.Constraint("DistanceY", 20, 3, 12, 3, Q("7 in")))
sketch5.addConstraint(Sketcher.Constraint("DistanceY", 3, 1, 3, 2, Q("2.75 in")))
sketch5.addConstraint(Sketcher.Constraint("DistanceX", 12, 3, -1, 1, Q("17.375 in")))
sketch5.addConstraint(Sketcher.Constraint("DistanceY", 2, 2, -1, 1, Q("8.3616 in")))
pad4 = body2.newObject("PartDesign::Pad", "Pad003")
pad4.Profile = sketch5
pad4.Length = Q("0.5 in")

# Sketch on XZ plane
sketch6 = body2.newObject("Sketcher::SketchObject", "Sketch005")
sketch6.AttachmentSupport = (doc.getObject("XZ_Plane001"), [""])
sketch6.MapMode = "FlatFace"
sketch6.AttachmentOffset = App.Placement(App.Vector(0, 0, -3.5 * 25.4), App.Rotation())
sketch6.addGeometry(Part.LineSegment(App.Vector(-317.5, -362.9, 0), App.Vector(-317.5, 362.9, 0)), False)
sketch6.addGeometry(Part.LineSegment(App.Vector(-317.5, 362.9, 0), App.Vector(-387.2, 362.9, 0)), False)
sketch6.addGeometry(Part.LineSegment(App.Vector(-387.2, 362.9, 0), App.Vector(-387.2, -362.9, 0)), False)
sketch6.addGeometry(Part.LineSegment(App.Vector(-387.2, -362.9, 0), App.Vector(-317.5, -362.9, 0)), False)
sketch6.addGeometry(Part.Circle(App.Vector(-330.2, -355.6, 0), App.Vector(0, 0, 1), 2.5), False)
sketch6.addGeometry(Part.Circle(App.Vector(-330.2, -304.8, 0), App.Vector(0, 0, 1), 2.5), False)
sketch6.addGeometry(Part.Circle(App.Vector(-330.2, -254, 0), App.Vector(0, 0, 1), 2.5), False)
sketch6.addGeometry(Part.Circle(App.Vector(-330.2, -203.2, 0), App.Vector(0, 0, 1), 2.5), False)
sketch6.addGeometry(Part.Circle(App.Vector(-330.2, -152.4, 0), App.Vector(0, 0, 1), 2.5), False)
sketch6.addGeometry(Part.Circle(App.Vector(-330.2, -101.6, 0), App.Vector(0, 0, 1), 2.5), False)
sketch6.addGeometry(Part.Circle(App.Vector(-330.2, -50.8, 0), App.Vector(0, 0, 1), 2.5), False)
sketch6.addGeometry(Part.Circle(App.Vector(-330.2, 50.8, 0), App.Vector(0, 0, 1), 2.5), False)
sketch6.addGeometry(Part.Circle(App.Vector(-330.2, 101.6, 0), App.Vector(0, 0, 1), 2.5), False)
sketch6.addGeometry(Part.Circle(App.Vector(-330.2, 152.4, 0), App.Vector(0, 0, 1), 2.5), False)
sketch6.addGeometry(Part.Circle(App.Vector(-330.2, 203.2, 0), App.Vector(0, 0, 1), 2.5), False)
sketch6.addGeometry(Part.Circle(App.Vector(-330.2, 254, 0), App.Vector(0, 0, 1), 2.5), False)
sketch6.addGeometry(Part.Circle(App.Vector(-330.2, 304.8, 0), App.Vector(0, 0, 1), 2.5), False)
sketch6.addGeometry(Part.Circle(App.Vector(-330.2, 355.6, 0), App.Vector(0, 0, 1), 2.5), False)
sketch6.addConstraint(Sketcher.Constraint("Coincident", 0, 2, 1, 1))
sketch6.addConstraint(Sketcher.Constraint("Coincident", 1, 2, 2, 1))
sketch6.addConstraint(Sketcher.Constraint("Coincident", 2, 2, 3, 1))
sketch6.addConstraint(Sketcher.Constraint("Coincident", 3, 2, 0, 1))
sketch6.addConstraint(Sketcher.Constraint("Vertical", 0))
sketch6.addConstraint(Sketcher.Constraint("Horizontal", 1))
sketch6.addConstraint(Sketcher.Constraint("Vertical", 2))
sketch6.addConstraint(Sketcher.Constraint("Horizontal", 3))
sketch6.addConstraint(Sketcher.Constraint("Equal", 4, 5))
sketch6.addConstraint(Sketcher.Constraint("Equal", 5, 6))
sketch6.addConstraint(Sketcher.Constraint("Equal", 6, 7))
sketch6.addConstraint(Sketcher.Constraint("Equal", 7, 8))
sketch6.addConstraint(Sketcher.Constraint("Equal", 8, 9))
sketch6.addConstraint(Sketcher.Constraint("Equal", 9, 10))
sketch6.addConstraint(Sketcher.Constraint("Equal", 10, 11))
sketch6.addConstraint(Sketcher.Constraint("Equal", 11, 12))
sketch6.addConstraint(Sketcher.Constraint("Equal", 12, 13))
sketch6.addConstraint(Sketcher.Constraint("Equal", 13, 14))
sketch6.addConstraint(Sketcher.Constraint("Equal", 14, 15))
sketch6.addConstraint(Sketcher.Constraint("Equal", 15, 16))
sketch6.addConstraint(Sketcher.Constraint("Equal", 16, 17))
sketch6.addConstraint(Sketcher.Constraint("Symmetric", 10, 3, 11, 3, -1))
sketch6.addConstraint(Sketcher.Constraint("Symmetric", 9, 3, 12, 3, -1))
sketch6.addConstraint(Sketcher.Constraint("Symmetric", 8, 3, 13, 3, -1))
sketch6.addConstraint(Sketcher.Constraint("Symmetric", 7, 3, 14, 3, -1))
sketch6.addConstraint(Sketcher.Constraint("Symmetric", 6, 3, 15, 3, -1))
sketch6.addConstraint(Sketcher.Constraint("Symmetric", 5, 3, 16, 3, -1))
sketch6.addConstraint(Sketcher.Constraint("Symmetric", 4, 3, 17, 3, -1))
sketch6.addConstraint(Sketcher.Constraint("Vertical", 4, 3, 5, 3))
sketch6.addConstraint(Sketcher.Constraint("Vertical", 5, 3, 6, 3))
sketch6.addConstraint(Sketcher.Constraint("Vertical", 6, 3, 7, 3))
sketch6.addConstraint(Sketcher.Constraint("Vertical", 7, 3, 8, 3))
sketch6.addConstraint(Sketcher.Constraint("Vertical", 8, 3, 9, 3))
sketch6.addConstraint(Sketcher.Constraint("Vertical", 9, 3, 10, 3))
sketch6.addConstraint(Sketcher.Constraint("Diameter", 4, Q("0.2 in")))
sketch6.addConstraint(Sketcher.Constraint("DistanceX", 4, 3, -1, 1, Q("13 in")))
sketch6.addConstraint(Sketcher.Constraint("DistanceY", 4, 3, -1, 1, Q("14 in")))
sketch6.addConstraint(Sketcher.Constraint("DistanceY", 5, 3, -1, 1, Q("12 in")))
sketch6.addConstraint(Sketcher.Constraint("DistanceY", 6, 3, -1, 1, Q("10 in")))
sketch6.addConstraint(Sketcher.Constraint("DistanceY", 7, 3, -1, 1, Q("8 in")))
sketch6.addConstraint(Sketcher.Constraint("DistanceY", 8, 3, -1, 1, Q("6 in")))
sketch6.addConstraint(Sketcher.Constraint("DistanceY", 9, 3, -1, 1, Q("4 in")))
sketch6.addConstraint(Sketcher.Constraint("DistanceY", 10, 3, -1, 1, Q("2 in")))
sketch6.addConstraint(Sketcher.Constraint("DistanceX", 0, 2, -1, 1, Q("12.5 in")))
sketch6.addConstraint(Sketcher.Constraint("DistanceY", 0, 1, 0, 2, 725.70644))
sketch6.addConstraint(Sketcher.Constraint("DistanceX", 1, 2, 1, 1, 69.668323))
sketch6.addConstraint(Sketcher.Constraint("DistanceY", -1, 1, 0, 2, 362.85322))
pocket2 = body2.newObject("PartDesign::Pocket", "Pocket001")
pocket2.Profile = sketch6
pocket2.Length = Q("3 in")
pocket2.Reversed = True

# Sketch on XZ plane
sketch7 = body2.newObject("Sketcher::SketchObject", "Sketch006")
sketch7.AttachmentSupport = (doc.getObject("XZ_Plane001"), [""])
sketch7.MapMode = "FlatFace"
sketch7.AttachmentOffset = App.Placement(App.Vector(0, 0, -4 * 25.4), App.Rotation())
sketch7.addGeometry(Part.Circle(App.Vector(0, 410.7, 0), App.Vector(0, 0, 1), 2.5), False)
sketch7.addConstraint(Sketcher.Constraint("PointOnObject", 0, 3, -2))
sketch7.addConstraint(Sketcher.Constraint("Diameter", 0, Q("0.2 in")))
sketch7.addConstraint(Sketcher.Constraint("DistanceY", -1, 1, 0, 3, 410.68625))
pocket3 = body2.newObject("PartDesign::Pocket", "Pocket002")
pocket3.Profile = sketch7
pocket3.Type = "ThroughAll"
pocket3.Reversed = True
doc.recompute()

polarpattern = body2.newObject("PartDesign::PolarPattern", "PolarPattern")
polarpattern.Originals = [pocket3]
polarpattern.Axis = (doc.getObject("Y_Axis001"), [""])
polarpattern.Angle = 210
polarpattern.Occurrences = 15
polarpattern.Reversed = True
body2.Tip = polarpattern

# Sketch on XZ plane
sketch8 = body2.newObject("Sketcher::SketchObject", "Sketch007")
sketch8.AttachmentSupport = (doc.getObject("XZ_Plane001"), [""])
sketch8.MapMode = "FlatFace"
sketch8.AttachmentOffset = App.Placement(App.Vector(0, 0, -4 * 25.4), App.Rotation())
sketch8.addGeometry(Part.Circle(App.Vector(0, 0, 0), App.Vector(0, 0, 1), 849), False)
sketch8.addConstraint(Sketcher.Constraint("Coincident", 0, 3, -1, 1))
sketch8.addConstraint(Sketcher.Constraint("Diameter", 0, 1697.782518))
pocket4 = body2.newObject("PartDesign::Pocket", "Pocket003")
pocket4.Profile = sketch8
pocket4.Type = "ThroughAll"
pocket4.Midplane = True
body4 = doc.addObject("PartDesign::Body", "Body003")

# Sketch on XZ plane
sketch9 = body4.newObject("Sketcher::SketchObject", "Sketch008")
sketch9.AttachmentSupport = (doc.getObject("XZ_Plane003"), [""])
sketch9.MapMode = "FlatFace"
sketch9.AttachmentOffset = App.Placement(App.Vector(0, 0, -5 * 25.4), App.Rotation())
sketch9.addGeometry(Part.Circle(App.Vector(0, 0, 0), App.Vector(0, 0, 1), 483), False)
sketch9.addGeometry(Part.Circle(App.Vector(0, 0, 0), App.Vector(0, 0, 1), 444), False)
sketch9.addConstraint(Sketcher.Constraint("Coincident", 0, 3, -1, 1))
sketch9.addConstraint(Sketcher.Constraint("Coincident", 1, 3, -1, 1))
sketch9.addConstraint(Sketcher.Constraint("Diameter", 0, Q("38 in")))
sketch9.addConstraint(Sketcher.Constraint("Diameter", 1, Q("35 in")))
pad5 = body4.newObject("PartDesign::Pad", "Pad004")
pad5.Profile = sketch9
pad5.Length = Q("1.5 in")
pad5.Reversed = True

# Sketch on XZ plane
sketch10 = body4.newObject("Sketcher::SketchObject", "Sketch009")
sketch10.AttachmentSupport = (doc.getObject("XZ_Plane003"), [""])
sketch10.MapMode = "FlatFace"
sketch10.AttachmentOffset = App.Placement(App.Vector(0, 0, -6.5 * 25.4), App.Rotation())
sketch10.addGeometry(Part.Circle(App.Vector(0, 0, 0), App.Vector(0, 0, 1), 608), False)
sketch10.addConstraint(Sketcher.Constraint("Coincident", 0, 3, -1, 1))
sketch10.addConstraint(Sketcher.Constraint("Diameter", 0, 1216.02725))
pocket5 = body4.newObject("PartDesign::Pocket", "Pocket004")
pocket5.Profile = sketch10
pocket5.Length = Q("5 in")
pocket5.Reversed = True
body5 = doc.addObject("PartDesign::Body", "Body004")

# Sketch on XZ plane
sketch11 = body5.newObject("Sketcher::SketchObject", "Sketch010")
sketch11.AttachmentSupport = (doc.getObject("XZ_Plane004"), [""])
sketch11.MapMode = "FlatFace"
sketch11.AttachmentOffset = App.Placement(App.Vector(0, 0, -8 * 25.4), App.Rotation())
sketch11.addGeometry(Part.LineSegment(App.Vector(0, 427, 0), App.Vector(0, 402, 0)), False)
sketch11.addGeometry(Part.ArcOfCircle(Part.Circle(App.Vector(0, 0, 0), App.Vector(0, 0, 1), 402), math.radians(90), math.radians(270)), False)
sketch11.addGeometry(Part.LineSegment(App.Vector(0, -402, 0), App.Vector(0, -427, 0)), False)
sketch11.addGeometry(Part.ArcOfCircle(Part.Circle(App.Vector(0, 0, 0), App.Vector(0, 0, 1), 427), math.radians(90), math.radians(270)), False)
sketch11.addConstraint(Sketcher.Constraint("Coincident", 0, 2, 1, 1))
sketch11.addConstraint(Sketcher.Constraint("Coincident", 1, 2, 2, 1))
sketch11.addConstraint(Sketcher.Constraint("Coincident", 2, 2, 3, 2))
sketch11.addConstraint(Sketcher.Constraint("Coincident", 3, 1, 0, 1))
sketch11.addConstraint(Sketcher.Constraint("Vertical", 0))
sketch11.addConstraint(Sketcher.Constraint("Vertical", 2))
sketch11.addConstraint(Sketcher.Constraint("Coincident", 1, 3, -1, 1))
sketch11.addConstraint(Sketcher.Constraint("Coincident", 3, 3, -1, 1))
sketch11.addConstraint(Sketcher.Constraint("PointOnObject", 0, 2, -2))
sketch11.addConstraint(Sketcher.Constraint("PointOnObject", 2, 2, -2))
sketch11.addConstraint(Sketcher.Constraint("DistanceY", 0, 2, 0, 1, Q("1 in")))
sketch11.addConstraint(Sketcher.Constraint("Radius", 1, Q("15.825 in")))
pad6 = body5.newObject("PartDesign::Pad", "Pad005")
pad6.Profile = sketch11
pad6.Length = Q("0.25 in")
pad6.Reversed = True

# Sketch on XZ plane
sketch12 = body5.newObject("Sketcher::SketchObject", "Sketch011")
sketch12.AttachmentSupport = (doc.getObject("XZ_Plane004"), [""])
sketch12.MapMode = "FlatFace"
sketch12.AttachmentOffset = App.Placement(App.Vector(0, 0, -4 * 25.4), App.Rotation())
sketch12.addGeometry(Part.Circle(App.Vector(0, 410.7, 0), App.Vector(0, 0, 1), 2.5), False)
sketch12.addConstraint(Sketcher.Constraint("PointOnObject", 0, 3, -2))
sketch12.addConstraint(Sketcher.Constraint("Diameter", 0, Q("0.2 in")))
sketch12.addConstraint(Sketcher.Constraint("DistanceY", -1, 1, 0, 3, 410.68625))
pocket6 = body5.newObject("PartDesign::Pocket", "Pocket005")
pocket6.Profile = sketch12
pocket6.Type = "ThroughAll"
doc.recompute()

polarpattern2 = body5.newObject("PartDesign::PolarPattern", "PolarPattern001")
polarpattern2.Originals = [pocket6]
polarpattern2.Axis = (doc.getObject("Y_Axis004"), [""])
polarpattern2.Angle = 210
polarpattern2.Occurrences = 15
polarpattern2.Reversed = True
body5.Tip = polarpattern2
mirroring.Visibility = False

doc.recompute()
